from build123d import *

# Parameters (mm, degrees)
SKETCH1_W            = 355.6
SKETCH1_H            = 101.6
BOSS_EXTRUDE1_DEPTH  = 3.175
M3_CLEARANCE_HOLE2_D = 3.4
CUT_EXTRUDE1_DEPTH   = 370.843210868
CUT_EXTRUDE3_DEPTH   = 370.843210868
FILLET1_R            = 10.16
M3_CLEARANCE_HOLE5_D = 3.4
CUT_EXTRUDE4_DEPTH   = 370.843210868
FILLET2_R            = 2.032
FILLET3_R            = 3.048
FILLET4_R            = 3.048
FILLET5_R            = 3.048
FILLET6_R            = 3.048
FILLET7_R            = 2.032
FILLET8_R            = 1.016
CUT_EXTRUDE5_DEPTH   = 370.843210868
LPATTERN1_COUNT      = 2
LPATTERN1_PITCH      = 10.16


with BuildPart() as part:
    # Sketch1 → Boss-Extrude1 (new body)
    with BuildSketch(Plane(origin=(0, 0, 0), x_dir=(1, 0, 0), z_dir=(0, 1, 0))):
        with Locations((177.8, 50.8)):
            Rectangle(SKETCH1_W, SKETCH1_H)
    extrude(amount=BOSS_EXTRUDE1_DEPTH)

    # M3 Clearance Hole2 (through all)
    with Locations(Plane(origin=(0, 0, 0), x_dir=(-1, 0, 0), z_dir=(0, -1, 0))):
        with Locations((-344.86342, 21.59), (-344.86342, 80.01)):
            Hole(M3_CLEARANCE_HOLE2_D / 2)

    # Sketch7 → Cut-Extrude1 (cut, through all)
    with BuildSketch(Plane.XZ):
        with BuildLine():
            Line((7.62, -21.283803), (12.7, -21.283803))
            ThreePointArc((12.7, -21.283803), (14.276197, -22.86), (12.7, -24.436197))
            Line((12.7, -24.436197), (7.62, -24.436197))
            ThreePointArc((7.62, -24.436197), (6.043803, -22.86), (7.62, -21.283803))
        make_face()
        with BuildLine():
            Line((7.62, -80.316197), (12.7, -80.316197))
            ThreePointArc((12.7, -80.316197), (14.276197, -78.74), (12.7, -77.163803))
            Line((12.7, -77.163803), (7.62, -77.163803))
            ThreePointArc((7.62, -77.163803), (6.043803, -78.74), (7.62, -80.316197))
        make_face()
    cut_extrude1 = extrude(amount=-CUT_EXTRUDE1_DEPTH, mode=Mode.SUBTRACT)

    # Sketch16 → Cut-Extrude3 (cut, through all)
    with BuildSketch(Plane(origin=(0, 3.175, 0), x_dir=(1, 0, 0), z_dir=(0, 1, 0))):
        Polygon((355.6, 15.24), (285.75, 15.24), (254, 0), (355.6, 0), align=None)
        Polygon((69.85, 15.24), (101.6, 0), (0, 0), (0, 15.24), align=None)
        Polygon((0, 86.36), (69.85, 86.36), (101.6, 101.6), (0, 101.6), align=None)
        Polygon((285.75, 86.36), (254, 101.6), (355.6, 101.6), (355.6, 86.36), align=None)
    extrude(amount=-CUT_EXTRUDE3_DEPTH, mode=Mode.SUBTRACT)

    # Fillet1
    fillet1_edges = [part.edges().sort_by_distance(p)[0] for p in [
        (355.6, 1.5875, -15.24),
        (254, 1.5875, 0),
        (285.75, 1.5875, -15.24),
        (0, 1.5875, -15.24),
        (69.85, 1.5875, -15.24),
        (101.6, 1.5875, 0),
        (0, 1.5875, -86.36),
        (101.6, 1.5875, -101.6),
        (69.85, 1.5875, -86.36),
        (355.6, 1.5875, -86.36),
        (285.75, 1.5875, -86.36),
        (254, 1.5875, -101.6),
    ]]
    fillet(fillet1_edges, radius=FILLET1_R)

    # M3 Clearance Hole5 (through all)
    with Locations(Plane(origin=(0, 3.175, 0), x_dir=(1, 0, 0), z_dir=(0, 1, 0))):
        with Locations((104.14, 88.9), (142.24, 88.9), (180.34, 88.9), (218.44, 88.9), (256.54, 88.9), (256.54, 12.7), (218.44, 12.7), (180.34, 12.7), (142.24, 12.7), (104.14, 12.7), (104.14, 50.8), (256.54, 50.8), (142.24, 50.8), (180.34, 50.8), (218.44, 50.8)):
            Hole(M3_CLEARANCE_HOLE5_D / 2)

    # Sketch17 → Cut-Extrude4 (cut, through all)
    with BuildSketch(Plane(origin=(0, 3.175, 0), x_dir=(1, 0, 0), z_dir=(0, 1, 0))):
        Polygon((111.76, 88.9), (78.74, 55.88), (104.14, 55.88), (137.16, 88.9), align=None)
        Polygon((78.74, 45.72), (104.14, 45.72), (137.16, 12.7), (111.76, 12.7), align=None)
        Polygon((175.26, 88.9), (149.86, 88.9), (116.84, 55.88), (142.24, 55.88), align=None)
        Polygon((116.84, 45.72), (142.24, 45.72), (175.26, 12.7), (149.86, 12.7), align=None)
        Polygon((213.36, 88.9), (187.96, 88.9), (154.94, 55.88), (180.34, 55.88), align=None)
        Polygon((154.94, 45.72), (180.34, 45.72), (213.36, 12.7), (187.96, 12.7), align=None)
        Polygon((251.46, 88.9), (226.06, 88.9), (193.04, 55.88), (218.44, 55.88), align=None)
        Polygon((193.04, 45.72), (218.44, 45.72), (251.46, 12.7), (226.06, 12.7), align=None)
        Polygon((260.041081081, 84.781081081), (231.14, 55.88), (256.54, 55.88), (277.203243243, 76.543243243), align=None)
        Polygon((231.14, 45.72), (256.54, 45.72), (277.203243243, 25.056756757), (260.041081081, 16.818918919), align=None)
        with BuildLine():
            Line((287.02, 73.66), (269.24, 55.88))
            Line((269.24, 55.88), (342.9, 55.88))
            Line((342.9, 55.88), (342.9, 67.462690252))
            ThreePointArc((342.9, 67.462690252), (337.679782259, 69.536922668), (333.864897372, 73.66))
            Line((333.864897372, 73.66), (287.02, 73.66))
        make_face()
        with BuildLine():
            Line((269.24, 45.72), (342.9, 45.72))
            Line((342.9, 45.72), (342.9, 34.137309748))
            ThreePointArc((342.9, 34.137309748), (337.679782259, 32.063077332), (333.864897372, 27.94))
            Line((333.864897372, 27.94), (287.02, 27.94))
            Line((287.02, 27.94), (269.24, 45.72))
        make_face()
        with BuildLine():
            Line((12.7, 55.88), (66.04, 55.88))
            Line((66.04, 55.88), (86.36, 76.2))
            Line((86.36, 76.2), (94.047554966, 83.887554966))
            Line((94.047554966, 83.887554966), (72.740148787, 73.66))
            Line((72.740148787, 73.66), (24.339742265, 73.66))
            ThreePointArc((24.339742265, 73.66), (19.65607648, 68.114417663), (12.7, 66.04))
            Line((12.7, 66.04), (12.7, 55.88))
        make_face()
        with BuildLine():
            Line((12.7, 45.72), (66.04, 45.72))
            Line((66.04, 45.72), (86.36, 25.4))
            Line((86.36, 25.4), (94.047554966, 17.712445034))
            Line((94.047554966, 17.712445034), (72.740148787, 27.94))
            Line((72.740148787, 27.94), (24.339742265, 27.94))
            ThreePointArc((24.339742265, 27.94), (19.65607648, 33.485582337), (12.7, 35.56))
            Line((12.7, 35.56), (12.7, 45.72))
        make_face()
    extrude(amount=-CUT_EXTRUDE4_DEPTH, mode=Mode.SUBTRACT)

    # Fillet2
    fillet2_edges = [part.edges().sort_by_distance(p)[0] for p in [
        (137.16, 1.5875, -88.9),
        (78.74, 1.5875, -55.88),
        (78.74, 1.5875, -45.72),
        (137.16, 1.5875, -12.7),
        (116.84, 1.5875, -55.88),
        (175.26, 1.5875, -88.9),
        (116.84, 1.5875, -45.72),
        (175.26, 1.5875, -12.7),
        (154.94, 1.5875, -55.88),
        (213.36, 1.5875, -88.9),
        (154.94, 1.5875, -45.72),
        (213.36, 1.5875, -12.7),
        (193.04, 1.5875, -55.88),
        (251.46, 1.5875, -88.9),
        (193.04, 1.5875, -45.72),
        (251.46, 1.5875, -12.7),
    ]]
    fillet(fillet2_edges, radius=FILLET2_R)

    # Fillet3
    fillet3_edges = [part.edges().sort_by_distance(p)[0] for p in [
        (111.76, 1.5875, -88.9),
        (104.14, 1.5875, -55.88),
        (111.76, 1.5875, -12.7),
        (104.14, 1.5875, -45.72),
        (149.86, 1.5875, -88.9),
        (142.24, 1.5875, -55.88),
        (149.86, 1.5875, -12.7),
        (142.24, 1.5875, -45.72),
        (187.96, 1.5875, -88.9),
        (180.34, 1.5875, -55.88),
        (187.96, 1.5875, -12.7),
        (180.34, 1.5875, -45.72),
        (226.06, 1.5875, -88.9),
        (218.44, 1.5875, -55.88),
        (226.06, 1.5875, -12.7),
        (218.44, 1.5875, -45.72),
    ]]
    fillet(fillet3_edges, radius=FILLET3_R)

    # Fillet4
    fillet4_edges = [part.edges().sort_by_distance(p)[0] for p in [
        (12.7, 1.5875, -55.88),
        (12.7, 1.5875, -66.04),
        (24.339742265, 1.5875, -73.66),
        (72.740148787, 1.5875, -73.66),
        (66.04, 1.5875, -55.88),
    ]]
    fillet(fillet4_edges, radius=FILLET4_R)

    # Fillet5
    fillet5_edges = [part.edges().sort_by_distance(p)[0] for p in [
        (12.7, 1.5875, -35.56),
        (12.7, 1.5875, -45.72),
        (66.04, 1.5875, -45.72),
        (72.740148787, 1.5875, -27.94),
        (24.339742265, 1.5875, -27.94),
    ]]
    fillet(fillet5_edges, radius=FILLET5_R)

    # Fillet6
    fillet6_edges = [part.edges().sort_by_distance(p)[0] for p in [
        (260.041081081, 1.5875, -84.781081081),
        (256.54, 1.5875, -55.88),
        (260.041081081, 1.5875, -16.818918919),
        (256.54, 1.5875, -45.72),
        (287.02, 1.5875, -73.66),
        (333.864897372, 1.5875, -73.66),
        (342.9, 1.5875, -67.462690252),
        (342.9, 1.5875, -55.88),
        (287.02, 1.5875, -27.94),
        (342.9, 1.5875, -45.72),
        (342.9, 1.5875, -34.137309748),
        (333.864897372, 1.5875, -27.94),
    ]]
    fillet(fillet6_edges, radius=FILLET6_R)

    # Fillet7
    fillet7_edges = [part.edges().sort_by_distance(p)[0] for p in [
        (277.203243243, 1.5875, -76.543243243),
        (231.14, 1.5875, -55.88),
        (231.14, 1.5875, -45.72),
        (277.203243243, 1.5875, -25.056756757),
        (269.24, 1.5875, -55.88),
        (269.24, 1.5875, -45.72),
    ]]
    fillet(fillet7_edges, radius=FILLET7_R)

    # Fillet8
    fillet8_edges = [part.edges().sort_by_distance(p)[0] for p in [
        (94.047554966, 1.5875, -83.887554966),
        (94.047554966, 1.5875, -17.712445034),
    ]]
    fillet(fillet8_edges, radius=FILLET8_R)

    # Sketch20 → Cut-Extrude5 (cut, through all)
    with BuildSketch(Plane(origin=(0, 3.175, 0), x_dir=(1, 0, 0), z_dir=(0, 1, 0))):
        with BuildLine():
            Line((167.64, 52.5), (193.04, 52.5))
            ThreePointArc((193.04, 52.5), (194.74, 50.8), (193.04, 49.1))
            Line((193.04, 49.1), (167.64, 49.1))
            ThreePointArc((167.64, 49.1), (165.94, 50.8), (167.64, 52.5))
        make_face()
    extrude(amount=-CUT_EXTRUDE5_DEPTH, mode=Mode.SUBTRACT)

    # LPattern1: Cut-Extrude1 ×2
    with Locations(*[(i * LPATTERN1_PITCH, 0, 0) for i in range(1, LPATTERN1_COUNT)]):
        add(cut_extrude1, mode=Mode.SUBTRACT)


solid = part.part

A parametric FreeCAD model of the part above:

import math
import FreeCAD as App
import Part
import Sketcher
Q = App.Units.Quantity


def edges_at(feature, points):
    """Names of the edges that pass closest to the given points."""
    edges = feature.Shape.Edges
    near = lambda p: min(range(len(edges)), key=lambda i: edges[i].distToShape(Part.Vertex(*p))[0])
    return sorted({f"Edge{near(p) + 1}" for p in points})


def add_polygon(sketch, points):
    """Adds a closed chain of lines whose ends are joined by coincident constraints."""
    first, n = sketch.GeometryCount, len(points)
    for a, b in zip(points, points[1:] + points[:1]):
        sketch.addGeometry(Part.LineSegment(App.Vector(*a, 0), App.Vector(*b, 0)), False)
    for i in range(n):
        sketch.addConstraint(Sketcher.Constraint("Coincident", first + i, 2, first + (i + 1) % n, 1))

doc = App.newDocument("Part")
body = doc.addObject("PartDesign::Body", "Body")

sketch1 = body.newObject("Sketcher::SketchObject", "Sketch")
sketch1.AttachmentSupport = (doc.getObject("XZ_Plane"), [""])
sketch1.MapMode = "FlatFace"
add_polygon(sketch1, [(0, -102), (0, 0), (356, 0), (356, -102)])
sketch1.addConstraint(Sketcher.Constraint("Vertical", 0))
sketch1.addConstraint(Sketcher.Constraint("Horizontal", 1))
sketch1.addConstraint(Sketcher.Constraint("Vertical", 2))
sketch1.addConstraint(Sketcher.Constraint("Horizontal", 3))
sketch1.addConstraint(Sketcher.Constraint("Coincident", 0, 2, -1, 1))
sketch1.addConstraint(Sketcher.Constraint("DistanceX", 1, 1, 1, 2, Q("14 in")))
sketch1.addConstraint(Sketcher.Constraint("DistanceY", 0, 1, 0, 2, Q("4 in")))
pad1 = body.newObject("PartDesign::Pad", "Pad")
pad1.Profile = sketch1
pad1.Length = Q("0.125 in")
pad1.Reversed = True

sketch2 = body.newObject("Sketcher::SketchObject", "Sketch001")
sketch2.AttachmentSupport = (doc.getObject("XZ_Plane"), [""])
sketch2.MapMode = "FlatFace"
sketch2.addGeometry(Part.Circle(App.Vector(344.9, -21.6, 0), App.Vector(0, 0, 1), 1.7), False)
sketch2.addGeometry(Part.Circle(App.Vector(344.9, -80, 0), App.Vector(0, 0, 1), 1.7), False)
sketch2.addConstraint(Sketcher.Constraint("Equal", 0, 1))
sketch2.addConstraint(Sketcher.Constraint("Vertical", 0, 3, 1, 3))
sketch2.addConstraint(Sketcher.Constraint("DistanceY", 1, 3, 0, 3, Q("2.3 in")))
sketch2.addConstraint(Sketcher.Constraint("Diameter", 0, Q("3.4 mm")))
sketch2.addConstraint(Sketcher.Constraint("DistanceY", 0, 3, -1, 1, Q("0.85 in")))
sketch2.addConstraint(Sketcher.Constraint("DistanceX", -1, 1, 0, 3, Q("13.5773 in")))
doc.recompute()
hole = body.newObject("PartDesign::Hole", "Hole")
hole.Profile = sketch2
hole.ThreadType = "None"
hole.Diameter = 3.4
hole.DepthType = "ThroughAll"

sketch3 = body.newObject("Sketcher::SketchObject", "Sketch002")
sketch3.AttachmentSupport = (doc.getObject("XZ_Plane"), [""])
sketch3.MapMode = "FlatFace"
sketch3.addGeometry(Part.LineSegment(App.Vector(12.7, -21.3, 0), App.Vector(7.6, -21.3, 0)), False)
sketch3.addGeometry(Part.ArcOfCircle(Part.Circle(App.Vector(7.6, -22.9, 0), App.Vector(0, 0, 1), 1.6), math.radians(90), math.radians(270)), False)
sketch3.addGeometry(Part.LineSegment(App.Vector(7.6, -24.4, 0), App.Vector(12.7, -24.4, 0)), False)
sketch3.addGeometry(Part.ArcOfCircle(Part.Circle(App.Vector(12.7, -22.9, 0), App.Vector(0, 0, 1), 1.6), math.radians(-90), math.radians(90)), False)
sketch3.addGeometry(Part.LineSegment(App.Vector(7.6, -80.3, 0), App.Vector(12.7, -80.3, 0)), False)
sketch3.addGeometry(Part.ArcOfCircle(Part.Circle(App.Vector(12.7, -78.7, 0), App.Vector(0, 0, 1), 1.6), math.radians(-90), math.radians(90)), False)
sketch3.addGeometry(Part.LineSegment(App.Vector(12.7, -77.2, 0), App.Vector(7.6, -77.2, 0)), False)
sketch3.addGeometry(Part.ArcOfCircle(Part.Circle(App.Vector(7.6, -78.7, 0), App.Vector(0, 0, 1), 1.6), math.radians(90), math.radians(270)), False)
sketch3.addConstraint(Sketcher.Constraint("Tangent", 0, 2, 1, 1))
sketch3.addConstraint(Sketcher.Constraint("Tangent", 1, 2, 2, 1))
sketch3.addConstraint(Sketcher.Constraint("Tangent", 2, 2, 3, 1))
sketch3.addConstraint(Sketcher.Constraint("Tangent", 3, 2, 0, 1))
sketch3.addConstraint(Sketcher.Constraint("Tangent", 4, 2, 5, 1))
sketch3.addConstraint(Sketcher.Constraint("Tangent", 5, 2, 6, 1))
sketch3.addConstraint(Sketcher.Constraint("Tangent", 6, 2, 7, 1))
sketch3.addConstraint(Sketcher.Constraint("Tangent", 7, 2, 4, 1))
sketch3.addConstraint(Sketcher.Constraint("Horizontal", 0))
sketch3.addConstraint(Sketcher.Constraint("Horizontal", 2))
sketch3.addConstraint(Sketcher.Constraint("Horizontal", 4))
sketch3.addConstraint(Sketcher.Constraint("Horizontal", 6))
sketch3.addConstraint(Sketcher.Constraint("Equal", 3, 5))
sketch3.addConstraint(Sketcher.Constraint("Vertical", 3, 3, 5, 3))
sketch3.addConstraint(Sketcher.Constraint("Vertical", 1, 3, 7, 3))
sketch3.addConstraint(Sketcher.Constraint("DistanceX", 0, 2, 0, 1, Q("0.2 in")))
sketch3.addConstraint(Sketcher.Constraint("DistanceX", -1, 1, 1, 3, Q("0.3 in")))
sketch3.addConstraint(Sketcher.Constraint("DistanceY", 1, 3, -1, 1, Q("0.9 in")))
sketch3.addConstraint(Sketcher.Constraint("DistanceY", 5, 3, -1, 1, Q("3.1 in")))
sketch3.addConstraint(Sketcher.Constraint("Radius", 1, Q("1.576197 mm")))
pocket1 = body.newObject("PartDesign::Pocket", "Pocket")
pocket1.Profile = sketch3
pocket1.Type = "ThroughAll"

sketch4 = body.newObject("Sketcher::SketchObject", "Sketch003")
sketch4.AttachmentSupport = (doc.getObject("XZ_Plane"), [""])
sketch4.MapMode = "FlatFace"
sketch4.AttachmentOffset = App.Placement(App.Vector(0, 0, -0.125 * 25.4), App.Rotation())
add_polygon(sketch4, [(356, -15), (286, -15), (254, 0), (356, 0)])
add_polygon(sketch4, [(102, 0), (70, -15), (0, -15), (0, 0)])
add_polygon(sketch4, [(0, -86), (70, -86), (102, -102), (0, -102)])
add_polygon(sketch4, [(254, -102), (286, -86), (356, -86), (356, -102)])
sketch4.addConstraint(Sketcher.Constraint("Horizontal", 0))
sketch4.addConstraint(Sketcher.Constraint("Horizontal", 2))
sketch4.addConstraint(Sketcher.Constraint("Vertical", 3))
sketch4.addConstraint(Sketcher.Constraint("Horizontal", 5))
sketch4.addConstraint(Sketcher.Constraint("Vertical", 6))
sketch4.addConstraint(Sketcher.Constraint("Horizontal", 7))
sketch4.addConstraint(Sketcher.Constraint("Horizontal", 8))
sketch4.addConstraint(Sketcher.Constraint("Horizontal", 10))
sketch4.addConstraint(Sketcher.Constraint("Vertical", 11))
sketch4.addConstraint(Sketcher.Constraint("Horizontal", 13))
sketch4.addConstraint(Sketcher.Constraint("Vertical", 14))
sketch4.addConstraint(Sketcher.Constraint("Horizontal", 15))
sketch4.addConstraint(Sketcher.Constraint("Coincident", 6, 2, -1, 1))
sketch4.addConstraint(Sketcher.Constraint("PointOnObject", 1, 2, -1))
sketch4.addConstraint(Sketcher.Constraint("PointOnObject", 10, 2, -2))
sketch4.addConstraint(Sketcher.Constraint("Parallel", 1, 9))
sketch4.addConstraint(Sketcher.Constraint("Parallel", 4, 12))
sketch4.addConstraint(Sketcher.Constraint("Horizontal", 3, 2, 4, 2))
sketch4.addConstraint(Sketcher.Constraint("Horizontal", 11, 2, 12, 2))
sketch4.addConstraint(Sketcher.Constraint("Horizontal", 10, 2, 14, 2))
sketch4.addConstraint(Sketcher.Constraint("Vertical", 4, 2, 8, 2))
sketch4.addConstraint(Sketcher.Constraint("Vertical", 7, 2, 9, 2))
sketch4.addConstraint(Sketcher.Constraint("Vertical", 0, 2, 12, 2))
sketch4.addConstraint(Sketcher.Constraint("Vertical", 3, 2, 13, 2))
sketch4.addConstraint(Sketcher.Constraint("Vertical", 1, 2, 15, 2))
sketch4.addConstraint(Sketcher.Constraint("Equal", 0, 5))
sketch4.addConstraint(Sketcher.Constraint("DistanceX", 2, 1, 2, 2, Q("4 in")))
sketch4.addConstraint(Sketcher.Constraint("DistanceY", 3, 2, 3, 1, Q("0.6 in")))
sketch4.addConstraint(Sketcher.Constraint("DistanceX", -1, 1, 1, 2, Q("10 in")))
sketch4.addConstraint(Sketcher.Constraint("DistanceY", 9, 2, -1, 1, Q("4 in")))
sketch4.addConstraint(Sketcher.Constraint("DistanceX", 0, 2, 0, 1, Q("2.75 in")))
pocket2 = body.newObject("PartDesign::Pocket", "Pocket001")
pocket2.Profile = sketch4
pocket2.Type = "ThroughAll"
pocket2.Reversed = True
doc.recompute()

fillet = body.newObject("PartDesign::Fillet", "Fillet")
fillet.Base = (pocket2, edges_at(pocket2, [
    (355.6, 1.587, -15.24),
    (254, 1.587, 0),
    (285.75, 1.587, -15.24),
    (0, 1.587, -15.24),
    (69.85, 1.587, -15.24),
    (101.6, 1.587, 0),
    (0, 1.587, -86.36),
    (101.6, 1.587, -101.6),
    (69.85, 1.587, -86.36),
    (355.6, 1.587, -86.36),
    (285.75, 1.587, -86.36),
    (254, 1.587, -101.6),
]))
fillet.Radius = Q("0.4 in")

sketch5 = body.newObject("Sketcher::SketchObject", "Sketch004")
sketch5.AttachmentSupport = (doc.getObject("XZ_Plane"), [""])
sketch5.MapMode = "FlatFace"
sketch5.AttachmentOffset = App.Placement(App.Vector(0, 0, -0.125 * 25.4), App.Rotation())
sketch5.addGeometry(Part.Circle(App.Vector(104.1, -88.9, 0), App.Vector(0, 0, 1), 1.7), False)
sketch5.addGeometry(Part.Circle(App.Vector(142.2, -88.9, 0), App.Vector(0, 0, 1), 1.7), False)
sketch5.addGeometry(Part.Circle(App.Vector(180.3, -88.9, 0), App.Vector(0, 0, 1), 1.7), False)
sketch5.addGeometry(Part.Circle(App.Vector(218.4, -88.9, 0), App.Vector(0, 0, 1), 1.7), False)
sketch5.addGeometry(Part.Circle(App.Vector(256.5, -88.9, 0), App.Vector(0, 0, 1), 1.7), False)
sketch5.addGeometry(Part.Circle(App.Vector(256.5, -12.7, 0), App.Vector(0, 0, 1), 1.7), False)
sketch5.addGeometry(Part.Circle(App.Vector(218.4, -12.7, 0), App.Vector(0, 0, 1), 1.7), False)
sketch5.addGeometry(Part.Circle(App.Vector(180.3, -12.7, 0), App.Vector(0, 0, 1), 1.7), False)
sketch5.addGeometry(Part.Circle(App.Vector(142.2, -12.7, 0), App.Vector(0, 0, 1), 1.7), False)
sketch5.addGeometry(Part.Circle(App.Vector(104.1, -12.7, 0), App.Vector(0, 0, 1), 1.7), False)
sketch5.addGeometry(Part.Circle(App.Vector(104.1, -50.8, 0), App.Vector(0, 0, 1), 1.7), False)
sketch5.addGeometry(Part.Circle(App.Vector(256.5, -50.8, 0), App.Vector(0, 0, 1), 1.7), False)
sketch5.addGeometry(Part.Circle(App.Vector(142.2, -50.8, 0), App.Vector(0, 0, 1), 1.7), False)
sketch5.addGeometry(Part.Circle(App.Vector(180.3, -50.8, 0), App.Vector(0, 0, 1), 1.7), False)
sketch5.addGeometry(Part.Circle(App.Vector(218.4, -50.8, 0), App.Vector(0, 0, 1), 1.7), False)
sketch5.addConstraint(Sketcher.Constraint("Equal", 0, 1))
sketch5.addConstraint(Sketcher.Constraint("Equal", 1, 2))
sketch5.addConstraint(Sketcher.Constraint("Equal", 2, 3))
sketch5.addConstraint(Sketcher.Constraint("Equal", 3, 4))
sketch5.addConstraint(Sketcher.Constraint("Equal", 4, 5))
sketch5.addConstraint(Sketcher.Constraint("Equal", 5, 6))
sketch5.addConstraint(Sketcher.Constraint("Equal", 6, 7))
sketch5.addConstraint(Sketcher.Constraint("Equal", 7, 8))
sketch5.addConstraint(Sketcher.Constraint("Equal", 8, 9))
sketch5.addConstraint(Sketcher.Constraint("Equal", 9, 10))
sketch5.addConstraint(Sketcher.Constraint("Equal", 10, 11))
sketch5.addConstraint(Sketcher.Constraint("Equal", 11, 12))
sketch5.addConstraint(Sketcher.Constraint("Equal", 12, 13))
sketch5.addConstraint(Sketcher.Constraint("Equal", 13, 14))
sketch5.addConstraint(Sketcher.Constraint("Horizontal", 0, 3, 1, 3))
sketch5.addConstraint(Sketcher.Constraint("Horizontal", 1, 3, 2, 3))
sketch5.addConstraint(Sketcher.Constraint("Horizontal", 2, 3, 3, 3))
sketch5.addConstraint(Sketcher.Constraint("Horizontal", 3, 3, 4, 3))
sketch5.addConstraint(Sketcher.Constraint("Horizontal", 5, 3, 6, 3))
sketch5.addConstraint(Sketcher.Constraint("Horizontal", 6, 3, 7, 3))
sketch5.addConstraint(Sketcher.Constraint("Horizontal", 7, 3, 8, 3))
sketch5.addConstraint(Sketcher.Constraint("Horizontal", 8, 3, 9, 3))
sketch5.addConstraint(Sketcher.Constraint("Horizontal", 10, 3, 11, 3))
sketch5.addConstraint(Sketcher.Constraint("Horizontal", 11, 3, 12, 3))
sketch5.addConstraint(Sketcher.Constraint("Horizontal", 12, 3, 13, 3))
sketch5.addConstraint(Sketcher.Constraint("Horizontal", 13, 3, 14, 3))
sketch5.addConstraint(Sketcher.Constraint("Vertical", 4, 3, 5, 3))
sketch5.addConstraint(Sketcher.Constraint("Vertical", 3, 3, 6, 3))
sketch5.addConstraint(Sketcher.Constraint("Vertical", 2, 3, 7, 3))
sketch5.addConstraint(Sketcher.Constraint("Vertical", 1, 3, 8, 3))
sketch5.addConstraint(Sketcher.Constraint("Vertical", 0, 3, 9, 3))
sketch5.addConstraint(Sketcher.Constraint("Vertical", 9, 3, 10, 3))
sketch5.addConstraint(Sketcher.Constraint("Vertical", 5, 3, 11, 3))
sketch5.addConstraint(Sketcher.Constraint("Vertical", 8, 3, 12, 3))
sketch5.addConstraint(Sketcher.Constraint("Vertical", 7, 3, 13, 3))
sketch5.addConstraint(Sketcher.Constraint("Vertical", 6, 3, 14, 3))
sketch5.addConstraint(Sketcher.Constraint("DistanceY", 10, 3, -1, 1, Q("2 in")))
sketch5.addConstraint(Sketcher.Constraint("DistanceX", 0, 3, 2, 3, Q("3 in")))
sketch5.addConstraint(Sketcher.Constraint("DistanceX", 1, 3, 3, 3, Q("3 in")))
sketch5.addConstraint(Sketcher.Constraint("DistanceX", 2, 3, 4, 3, Q("3 in")))
sketch5.addConstraint(Sketcher.Constraint("DistanceY", 4, 3, 5, 3, Q("3 in")))
sketch5.addConstraint(Sketcher.Constraint("DistanceX", -1, 1, 0, 3, Q("4.1 in")))
sketch5.addConstraint(Sketcher.Constraint("DistanceY", 0, 3, -1, 1, Q("3.5 in")))
sketch5.addConstraint(Sketcher.Constraint("DistanceX", -1, 1, 1, 3, Q("5.6 in")))
sketch5.addConstraint(Sketcher.Constraint("Diameter", 0, Q("3.4 mm")))
doc.recompute()
hole2 = body.newObject("PartDesign::Hole", "Hole001")
hole2.Profile = sketch5
hole2.ThreadType = "None"
hole2.Diameter = 3.4
hole2.DepthType = "ThroughAll"
hole2.Reversed = True

sketch6 = body.newObject("Sketcher::SketchObject", "Sketch005")
sketch6.AttachmentSupport = (doc.getObject("XZ_Plane"), [""])
sketch6.MapMode = "FlatFace"
sketch6.AttachmentOffset = App.Placement(App.Vector(0, 0, -0.125 * 25.4), App.Rotation())
add_polygon(sketch6, [(112, -89), (79, -56), (104, -56), (137, -89)])
add_polygon(sketch6, [(104, -46), (79, -46), (112, -13), (137, -13)])
add_polygon(sketch6, [(175, -89), (150, -89), (117, -56), (142, -56)])
add_polygon(sketch6, [(142, -46), (117, -46), (150, -13), (175, -13)])
add_polygon(sketch6, [(213, -89), (188, -89), (155, -56), (180, -56)])
add_polygon(sketch6, [(180, -46), (155, -46), (188, -13), (213, -13)])
add_polygon(sketch6, [(251, -89), (226, -89), (193, -56), (218, -56)])
add_polygon(sketch6, [(218, -46), (193, -46), (226, -13), (251, -13)])
add_polygon(sketch6, [(260, -85), (231, -56), (257, -56), (277, -77)])
add_polygon(sketch6, [(257, -46), (231, -46), (260, -17), (277, -25)])
sketch6.addGeometry(Part.LineSegment(App.Vector(287, -74, 0), App.Vector(269, -56, 0)), False)
sketch6.addGeometry(Part.LineSegment(App.Vector(269, -56, 0), App.Vector(343, -56, 0)), False)
sketch6.addGeometry(Part.LineSegment(App.Vector(343, -56, 0), App.Vector(343, -67, 0)), False)
sketch6.addGeometry(Part.ArcOfCircle(Part.Circle(App.Vector(345, -80, 0), App.Vector(0, 0, 1), 13), math.radians(99), math.radians(150)), False)
sketch6.addGeometry(Part.LineSegment(App.Vector(334, -74, 0), App.Vector(287, -74, 0)), False)
sketch6.addGeometry(Part.LineSegment(App.Vector(343, -46, 0), App.Vector(269, -46, 0)), False)
sketch6.addGeometry(Part.LineSegment(App.Vector(269, -46, 0), App.Vector(287, -28, 0)), False)
sketch6.addGeometry(Part.LineSegment(App.Vector(287, -28, 0), App.Vector(334, -28, 0)), False)
sketch6.addGeometry(Part.ArcOfCircle(Part.Circle(App.Vector(345, -22, 0), App.Vector(0, 0, 1), 13), math.radians(-150), math.radians(-99)), False)
sketch6.addGeometry(Part.LineSegment(App.Vector(343, -34, 0), App.Vector(343, -46, 0)), False)
sketch6.addGeometry(Part.LineSegment(App.Vector(13, -56, 0), App.Vector(66, -56, 0)), False)
sketch6.addGeometry(Part.LineSegment(App.Vector(66, -56, 0), App.Vector(94, -84, 0)), False)
sketch6.addGeometry(Part.LineSegment(App.Vector(94, -84, 0), App.Vector(73, -74, 0)), False)
sketch6.addGeometry(Part.LineSegment(App.Vector(73, -74, 0), App.Vector(24, -74, 0)), False)
sketch6.addGeometry(Part.ArcOfCircle(Part.Circle(App.Vector(13, -79, 0), App.Vector(0, 0, 1), 13), math.radians(24), math.radians(90)), False)
sketch6.addGeometry(Part.LineSegment(App.Vector(13, -66, 0), App.Vector(13, -56, 0)), False)
sketch6.addGeometry(Part.LineSegment(App.Vector(66, -46, 0), App.Vector(13, -46, 0)), False)
sketch6.addGeometry(Part.LineSegment(App.Vector(13, -46, 0), App.Vector(13, -36, 0)), False)
sketch6.addGeometry(Part.ArcOfCircle(Part.Circle(App.Vector(13, -23, 0), App.Vector(0, 0, 1), 13), math.radians(-90), math.radians(-24)), False)
sketch6.addGeometry(Part.LineSegment(App.Vector(24, -28, 0), App.Vector(73, -28, 0)), False)
sketch6.addGeometry(Part.LineSegment(App.Vector(73, -28, 0), App.Vector(94, -18, 0)), False)
sketch6.addGeometry(Part.LineSegment(App.Vector(94, -18, 0), App.Vector(66, -46, 0)), False)
sketch6.addConstraint(Sketcher.Constraint("Coincident", 40, 2, 41, 1))
sketch6.addConstraint(Sketcher.Constraint("Coincident", 41, 2, 42, 1))
sketch6.addConstraint(Sketcher.Constraint("Coincident", 42, 2, 43, 1))
sketch6.addConstraint(Sketcher.Constraint("Coincident", 43, 2, 44, 1))
sketch6.addConstraint(Sketcher.Constraint("Coincident", 44, 2, 40, 1))
sketch6.addConstraint(Sketcher.Constraint("Coincident", 45, 2, 46, 1))
sketch6.addConstraint(Sketcher.Constraint("Coincident", 46, 2, 47, 1))
sketch6.addConstraint(Sketcher.Constraint("Coincident", 47, 2, 48, 1))
sketch6.addConstraint(Sketcher.Constraint("Coincident", 48, 2, 49, 1))
sketch6.addConstraint(Sketcher.Constraint("Coincident", 49, 2, 45, 1))
sketch6.addConstraint(Sketcher.Constraint("Coincident", 50, 2, 51, 1))
sketch6.addConstraint(Sketcher.Constraint("Coincident", 51, 2, 52, 1))
sketch6.addConstraint(Sketcher.Constraint("Coincident", 52, 2, 53, 1))
sketch6.addConstraint(Sketcher.Constraint("Coincident", 53, 2, 54, 1))
sketch6.addConstraint(Sketcher.Constraint("Coincident", 54, 2, 55, 1))
sketch6.addConstraint(Sketcher.Constraint("Coincident", 55, 2, 50, 1))
sketch6.addConstraint(Sketcher.Constraint("Coincident", 56, 2, 57, 1))
sketch6.addConstraint(Sketcher.Constraint("Coincident", 57, 2, 58, 1))
sketch6.addConstraint(Sketcher.Constraint("Coincident", 58, 2, 59, 1))
sketch6.addConstraint(Sketcher.Constraint("Coincident", 59, 2, 60, 1))
sketch6.addConstraint(Sketcher.Constraint("Coincident", 60, 2, 61, 1))
sketch6.addConstraint(Sketcher.Constraint("Coincident", 61, 2, 56, 1))
sketch6.addConstraint(Sketcher.Constraint("Horizontal", 1))
sketch6.addConstraint(Sketcher.Constraint("Horizontal", 3))
sketch6.addConstraint(Sketcher.Constraint("Horizontal", 4))
sketch6.addConstraint(Sketcher.Constraint("Horizontal", 6))
sketch6.addConstraint(Sketcher.Constraint("Horizontal", 8))
sketch6.addConstraint(Sketcher.Constraint("Horizontal", 10))
sketch6.addConstraint(Sketcher.Constraint("Horizontal", 12))
sketch6.addConstraint(Sketcher.Constraint("Horizontal", 14))
sketch6.addConstraint(Sketcher.Constraint("Horizontal", 16))
sketch6.addConstraint(Sketcher.Constraint("Horizontal", 18))
sketch6.addConstraint(Sketcher.Constraint("Horizontal", 20))
sketch6.addConstraint(Sketcher.Constraint("Horizontal", 22))
sketch6.addConstraint(Sketcher.Constraint("Horizontal", 24))
sketch6.addConstraint(Sketcher.Constraint("Horizontal", 26))
sketch6.addConstraint(Sketcher.Constraint("Horizontal", 28))
sketch6.addConstraint(Sketcher.Constraint("Horizontal", 30))
sketch6.addConstraint(Sketcher.Constraint("Horizontal", 33))
sketch6.addConstraint(Sketcher.Constraint("Horizontal", 36))
sketch6.addConstraint(Sketcher.Constraint("Horizontal", 41))
sketch6.addConstraint(Sketcher.Constraint("Vertical", 42))
sketch6.addConstraint(Sketcher.Constraint("Horizontal", 44))
sketch6.addConstraint(Sketcher.Constraint("Horizontal", 45))
sketch6.addConstraint(Sketcher.Constraint("Horizontal", 47))
sketch6.addConstraint(Sketcher.Constraint("Vertical", 49))
sketch6.addConstraint(Sketcher.Constraint("Horizontal", 50))
sketch6.addConstraint(Sketcher.Constraint("Horizontal", 53))
sketch6.addConstraint(Sketcher.Constraint("Vertical", 55))
sketch6.addConstraint(Sketcher.Constraint("Horizontal", 56))
sketch6.addConstraint(Sketcher.Constraint("Vertical", 57))
sketch6.addConstraint(Sketcher.Constraint("Horizontal", 59))
sketch6.addConstraint(Sketcher.Constraint("Equal", 43, 48))
sketch6.addConstraint(Sketcher.Constraint("Equal", 48, 54))
sketch6.addConstraint(Sketcher.Constraint("Equal", 54, 58))
sketch6.addConstraint(Sketcher.Constraint("Parallel", 0, 2))
sketch6.addConstraint(Sketcher.Constraint("Perpendicular", 2, 5))
sketch6.addConstraint(Sketcher.Constraint("Parallel", 5, 7))
sketch6.addConstraint(Sketcher.Constraint("Perpendicular", 7, 9))
sketch6.addConstraint(Sketcher.Constraint("Parallel", 9, 11))
sketch6.addConstraint(Sketcher.Constraint("Perpendicular", 11, 13))
sketch6.addConstraint(Sketcher.Constraint("Parallel", 13, 15))
sketch6.addConstraint(Sketcher.Constraint("Perpendicular", 15, 17))
sketch6.addConstraint(Sketcher.Constraint("Parallel", 17, 19))
sketch6.addConstraint(Sketcher.Constraint("Perpendicular", 19, 21))
sketch6.addConstraint(Sketcher.Constraint("Parallel", 21, 23))
sketch6.addConstraint(Sketcher.Constraint("Perpendicular", 23, 25))
sketch6.addConstraint(Sketcher.Constraint("Parallel", 25, 27))
sketch6.addConstraint(Sketcher.Constraint("Perpendicular", 27, 29))
sketch6.addConstraint(Sketcher.Constraint("Parallel", 29, 31))
sketch6.addConstraint(Sketcher.Constraint("Perpendicular", 31, 32))
sketch6.addConstraint(Sketcher.Constraint("Parallel", 32, 34))
sketch6.addConstraint(Sketcher.Constraint("Perpendicular", 34, 37))
sketch6.addConstraint(Sketcher.Constraint("Parallel", 37, 39))
sketch6.addConstraint(Sketcher.Constraint("Perpendicular", 39, 40))
sketch6.addConstraint(Sketcher.Constraint("Perpendicular", 40, 46))
sketch6.addConstraint(Sketcher.Constraint("Perpendicular", 46, 51))
sketch6.addConstraint(Sketcher.Constraint("Parallel", 38, 52))
sketch6.addConstraint(Sketcher.Constraint("Parallel", 35, 60))
sketch6.addConstraint(Sketcher.Constraint("Perpendicular", 51, 61))
sketch6.addConstraint(Sketcher.Constraint("Horizontal", 3, 2, 8, 2))
sketch6.addConstraint(Sketcher.Constraint("Horizontal", 1, 2, 9, 2))
sketch6.addConstraint(Sketcher.Constraint("Horizontal", 7, 2, 12, 2))
sketch6.addConstraint(Sketcher.Constraint("Horizontal", 6, 2, 13, 2))
sketch6.addConstraint(Sketcher.Constraint("Horizontal", 11, 2, 16, 2))
sketch6.addConstraint(Sketcher.Constraint("Horizontal", 10, 2, 17, 2))
sketch6.addConstraint(Sketcher.Constraint("Horizontal", 15, 2, 20, 2))
sketch6.addConstraint(Sketcher.Constraint("Horizontal", 14, 2, 21, 2))
sketch6.addConstraint(Sketcher.Constraint("Horizontal", 19, 2, 24, 2))
sketch6.addConstraint(Sketcher.Constraint("Horizontal", 18, 2, 25, 2))
sketch6.addConstraint(Sketcher.Constraint("Horizontal", 23, 2, 28, 2))
sketch6.addConstraint(Sketcher.Constraint("Horizontal", 22, 2, 29, 2))
sketch6.addConstraint(Sketcher.Constraint("Horizontal", 26, 2, 32, 2))
sketch6.addConstraint(Sketcher.Constraint("Horizontal", 31, 2, 36, 2))
sketch6.addConstraint(Sketcher.Constraint("Horizontal", 33, 2, 40, 2))
sketch6.addConstraint(Sketcher.Constraint("Horizontal", 39, 2, 45, 2))
sketch6.addConstraint(Sketcher.Constraint("Horizontal", 41, 2, 50, 2))
sketch6.addConstraint(Sketcher.Constraint("Horizontal", 44, 2, 52, 2))
sketch6.addConstraint(Sketcher.Constraint("Horizontal", 49, 2, 56, 2))
sketch6.addConstraint(Sketcher.Constraint("Horizontal", 47, 2, 58, 2))
sketch6.addConstraint(Sketcher.Constraint("Vertical", 43, 3, 48, 3))
sketch6.addConstraint(Sketcher.Constraint("Vertical", 54, 3, 58, 3))
sketch6.addConstraint(Sketcher.Constraint("Vertical", 0, 2, 4, 2))
sketch6.addConstraint(Sketcher.Constraint("Vertical", 3, 2, 5, 2))
sketch6.addConstraint(Sketcher.Constraint("Vertical", 2, 2, 6, 2))
sketch6.addConstraint(Sketcher.Constraint("Vertical", 9, 2, 12, 2))
sketch6.addConstraint(Sketcher.Constraint("Vertical", 11, 2, 14, 2))
sketch6.addConstraint(Sketcher.Constraint("Vertical", 17, 2, 20, 2))
sketch6.addConstraint(Sketcher.Constraint("Vertical", 19, 2, 22, 2))
sketch6.addConstraint(Sketcher.Constraint("Vertical", 25, 2, 28, 2))
sketch6.addConstraint(Sketcher.Constraint("Vertical", 27, 2, 30, 2))
sketch6.addConstraint(Sketcher.Constraint("Vertical", 32, 2, 36, 2))
sketch6.addConstraint(Sketcher.Constraint("Vertical", 35, 2, 37, 2))
sketch6.addConstraint(Sketcher.Constraint("Vertical", 34, 2, 38, 2))
sketch6.addConstraint(Sketcher.Constraint("Vertical", 33, 2, 39, 2))
sketch6.addConstraint(Sketcher.Constraint("Vertical", 40, 2, 45, 2))
sketch6.addConstraint(Sketcher.Constraint("Vertical", 44, 2, 46, 2))
sketch6.addConstraint(Sketcher.Constraint("Vertical", 43, 2, 47, 2))
sketch6.addConstraint(Sketcher.Constraint("Vertical", 42, 2, 48, 2))
sketch6.addConstraint(Sketcher.Constraint("Vertical", 58, 3, 54, 2))
sketch6.addConstraint(Sketcher.Constraint("Vertical", 55, 2, 56, 2))
sketch6.addConstraint(Sketcher.Constraint("Vertical", 53, 2, 58, 2))
sketch6.addConstraint(Sketcher.Constraint("Vertical", 52, 2, 59, 2))
sketch6.addConstraint(Sketcher.Constraint("Vertical", 51, 2, 60, 2))
sketch6.addConstraint(Sketcher.Constraint("Vertical", 50, 2, 61, 2))
sketch6.addConstraint(Sketcher.Constraint("Equal", 6, 8))
sketch6.addConstraint(Sketcher.Constraint("Equal", 14, 16))
sketch6.addConstraint(Sketcher.Constraint("Equal", 22, 24))
sketch6.addConstraint(Sketcher.Constraint("Equal", 30, 33))
sketch6.addConstraint(Sketcher.Constraint("Radius", 43, Q("0.5 in")))
sketch6.addConstraint(Sketcher.Constraint("DistanceX", 1, 1, 1, 2, Q("1 in")))
sketch6.addConstraint(Sketcher.Constraint("DistanceX", 41, 1, 41, 2, Q("2.9 in")))
sketch6.addConstraint(Sketcher.Constraint("DistanceX", 50, 1, 50, 2, Q("2.1 in")))
sketch6.addConstraint(Sketcher.Constraint("DistanceY", 55, 1, 55, 2, Q("0.4 in")))
sketch6.addConstraint(Sketcher.Constraint("DistanceX", -1, 1, 54, 3, Q("0.5 in")))
sketch6.addConstraint(Sketcher.Constraint("DistanceY", 54, 3, -1, 1, Q("3.1 in")))
sketch6.addConstraint(Sketcher.Constraint("DistanceY", 58, 3, -1, 1, Q("0.9 in")))
sketch6.addConstraint(Sketcher.Constraint("DistanceX", -1, 1, 0, 2, Q("3.1 in")))
sketch6.addConstraint(Sketcher.Constraint("DistanceX", -1, 1, 2, 2, Q("5.4 in")))
sketch6.addConstraint(Sketcher.Constraint("DistanceX", -1, 1, 8, 2, Q("5.9 in")))
sketch6.addConstraint(Sketcher.Constraint("DistanceX", -1, 1, 16, 2, Q("7.4 in")))
sketch6.addConstraint(Sketcher.Constraint("DistanceX", -1, 1, 24, 2, Q("8.9 in")))
sketch6.addConstraint(Sketcher.Constraint("DistanceX", -1, 1, 32, 2, Q("9.1 in")))
sketch6.addConstraint(Sketcher.Constraint("DistanceX", -1, 1, 40, 2, Q("10.6 in")))
sketch6.addConstraint(Sketcher.Constraint("DistanceY", 43, 2, -1, 1, Q("2.9 in")))
sketch6.addConstraint(Sketcher.Constraint("DistanceY", 43, 3, -1, 1, Q("3.15 in")))
sketch6.addConstraint(Sketcher.Constraint("DistanceX", -1, 1, 43, 3, Q("13.5773 in")))
sketch6.addConstraint(Sketcher.Constraint("Distance", 32, Q("40.872301 mm")))
sketch6.addConstraint(Sketcher.Constraint("Distance", 52, Q("23.634899 mm")))
sketch6.addConstraint(Sketcher.Constraint("Distance", 34, Q("29.222239 mm")))
pocket3 = body.newObject("PartDesign::Pocket", "Pocket002")
pocket3.Profile = sketch6
pocket3.Type = "ThroughAll"
pocket3.Reversed = True
doc.recompute()

fillet2 = body.newObject("PartDesign::Fillet", "Fillet001")
fillet2.Base = (pocket3, edges_at(pocket3, [
    (137.16, 1.587, -88.9),
    (78.74, 1.587, -55.88),
    (78.74, 1.587, -45.72),
    (137.16, 1.587, -12.7),
    (116.84, 1.587, -55.88),
    (175.26, 1.587, -88.9),
    (116.84, 1.587, -45.72),
    (175.26, 1.587, -12.7),
    (154.94, 1.587, -55.88),
    (213.36, 1.587, -88.9),
    (154.94, 1.587, -45.72),
    (213.36, 1.587, -12.7),
    (193.04, 1.587, -55.88),
    (251.46, 1.587, -88.9),
    (193.04, 1.587, -45.72),
    (251.46, 1.587, -12.7),
]))
fillet2.Radius = Q("0.08 in")
doc.recompute()

fillet3 = body.newObject("PartDesign::Fillet", "Fillet002")
fillet3.Base = (fillet2, edges_at(fillet2, [
    (111.76, 1.587, -88.9),
    (104.14, 1.587, -55.88),
    (111.76, 1.587, -12.7),
    (104.14, 1.587, -45.72),
    (149.86, 1.587, -88.9),
    (142.24, 1.587, -55.88),
    (149.86, 1.587, -12.7),
    (142.24, 1.587, -45.72),
    (187.96, 1.587, -88.9),
    (180.34, 1.587, -55.88),
    (187.96, 1.587, -12.7),
    (180.34, 1.587, -45.72),
    (226.06, 1.587, -88.9),
    (218.44, 1.587, -55.88),
    (226.06, 1.587, -12.7),
    (218.44, 1.587, -45.72),
]))
fillet3.Radius = Q("0.12 in")
doc.recompute()

fillet4 = body.newObject("PartDesign::Fillet", "Fillet003")
fillet4.Base = (fillet3, edges_at(fillet3, [
    (12.7, 1.587, -55.88),
    (12.7, 1.587, -66.04),
    (24.34, 1.587, -73.66),
    (72.74, 1.587, -73.66),
    (66.04, 1.587, -55.88),
]))
fillet4.Radius = Q("0.12 in")
doc.recompute()

fillet5 = body.newObject("PartDesign::Fillet", "Fillet004")
fillet5.Base = (fillet4, edges_at(fillet4, [
    (12.7, 1.587, -35.56),
    (12.7, 1.587, -45.72),
    (66.04, 1.587, -45.72),
    (72.74, 1.587, -27.94),
    (24.34, 1.587, -27.94),
]))
fillet5.Radius = Q("0.12 in")
doc.recompute()

fillet6 = body.newObject("PartDesign::Fillet", "Fillet005")
fillet6.Base = (fillet5, edges_at(fillet5, [
    (260.041, 1.587, -84.781),
    (256.54, 1.587, -55.88),
    (260.041, 1.587, -16.819),
    (256.54, 1.587, -45.72),
    (287.02, 1.587, -73.66),
    (333.865, 1.587, -73.66),
    (342.9, 1.587, -67.463),
    (342.9, 1.587, -55.88),
    (287.02, 1.587, -27.94),
    (342.9, 1.587, -45.72),
    (342.9, 1.587, -34.137),
    (333.865, 1.587, -27.94),
]))
fillet6.Radius = Q("0.12 in")
doc.recompute()

fillet7 = body.newObject("PartDesign::Fillet", "Fillet006")
fillet7.Base = (fillet6, edges_at(fillet6, [
    (277.203, 1.587, -76.543),
    (231.14, 1.587, -55.88),
    (231.14, 1.587, -45.72),
    (277.203, 1.587, -25.057),
    (269.24, 1.587, -55.88),
    (269.24, 1.587, -45.72),
]))
fillet7.Radius = Q("0.08 in")
doc.recompute()

fillet8 = body.newObject("PartDesign::Fillet", "Fillet007")
fillet8.Base = (fillet7, edges_at(fillet7, [(94.048, 1.587, -83.888), (94.048, 1.587, -17.712)]))
fillet8.Radius = Q("0.04 in")

sketch7 = body.newObject("Sketcher::SketchObject", "Sketch006")
sketch7.AttachmentSupport = (doc.getObject("XZ_Plane"), [""])
sketch7.MapMode = "FlatFace"
sketch7.AttachmentOffset = App.Placement(App.Vector(0, 0, -0.125 * 25.4), App.Rotation())
sketch7.addGeometry(Part.LineSegment(App.Vector(193, -52.5, 0), App.Vector(167.6, -52.5, 0)), False)
sketch7.addGeometry(Part.ArcOfCircle(Part.Circle(App.Vector(167.6, -50.8, 0), App.Vector(0, 0, 1), 1.7), math.radians(90), math.radians(270)), False)
sketch7.addGeometry(Part.LineSegment(App.Vector(167.6, -49.1, 0), App.Vector(193, -49.1, 0)), False)
sketch7.addGeometry(Part.ArcOfCircle(Part.Circle(App.Vector(193, -50.8, 0), App.Vector(0, 0, 1), 1.7), math.radians(-90), math.radians(90)), False)
sketch7.addConstraint(Sketcher.Constraint("Tangent", 0, 2, 1, 2))
sketch7.addConstraint(Sketcher.Constraint("Tangent", 1, 1, 2, 1))
sketch7.addConstraint(Sketcher.Constraint("Tangent", 2, 2, 3, 2))
sketch7.addConstraint(Sketcher.Constraint("Tangent", 3, 1, 0, 1))
sketch7.addConstraint(Sketcher.Constraint("Horizontal", 0))
sketch7.addConstraint(Sketcher.Constraint("Horizontal", 2))
sketch7.addConstraint(Sketcher.Constraint("DistanceX", 0, 2, 0, 1, Q("1 in")))
sketch7.addConstraint(Sketcher.Constraint("DistanceY", 1, 3, -1, 1, Q("2 in")))
sketch7.addConstraint(Sketcher.Constraint("DistanceX", -1, 1, 1, 3, Q("6.6 in")))
sketch7.addConstraint(Sketcher.Constraint("Radius", 1, Q("1.7 mm")))
pocket4 = body.newObject("PartDesign::Pocket", "Pocket003")
pocket4.Profile = sketch7
pocket4.Type = "ThroughAll"
pocket4.Reversed = True
doc.recompute()

linearpattern = body.newObject("PartDesign::LinearPattern", "LinearPattern")
linearpattern.Originals = [pocket1]
linearpattern.Direction = (doc.getObject("X_Axis"), [""])
linearpattern.Mode = "offset"
linearpattern.Offset = Q("0.4 in")
linearpattern.Occurrences = 2
body.Tip = linearpattern

doc.recompute()
